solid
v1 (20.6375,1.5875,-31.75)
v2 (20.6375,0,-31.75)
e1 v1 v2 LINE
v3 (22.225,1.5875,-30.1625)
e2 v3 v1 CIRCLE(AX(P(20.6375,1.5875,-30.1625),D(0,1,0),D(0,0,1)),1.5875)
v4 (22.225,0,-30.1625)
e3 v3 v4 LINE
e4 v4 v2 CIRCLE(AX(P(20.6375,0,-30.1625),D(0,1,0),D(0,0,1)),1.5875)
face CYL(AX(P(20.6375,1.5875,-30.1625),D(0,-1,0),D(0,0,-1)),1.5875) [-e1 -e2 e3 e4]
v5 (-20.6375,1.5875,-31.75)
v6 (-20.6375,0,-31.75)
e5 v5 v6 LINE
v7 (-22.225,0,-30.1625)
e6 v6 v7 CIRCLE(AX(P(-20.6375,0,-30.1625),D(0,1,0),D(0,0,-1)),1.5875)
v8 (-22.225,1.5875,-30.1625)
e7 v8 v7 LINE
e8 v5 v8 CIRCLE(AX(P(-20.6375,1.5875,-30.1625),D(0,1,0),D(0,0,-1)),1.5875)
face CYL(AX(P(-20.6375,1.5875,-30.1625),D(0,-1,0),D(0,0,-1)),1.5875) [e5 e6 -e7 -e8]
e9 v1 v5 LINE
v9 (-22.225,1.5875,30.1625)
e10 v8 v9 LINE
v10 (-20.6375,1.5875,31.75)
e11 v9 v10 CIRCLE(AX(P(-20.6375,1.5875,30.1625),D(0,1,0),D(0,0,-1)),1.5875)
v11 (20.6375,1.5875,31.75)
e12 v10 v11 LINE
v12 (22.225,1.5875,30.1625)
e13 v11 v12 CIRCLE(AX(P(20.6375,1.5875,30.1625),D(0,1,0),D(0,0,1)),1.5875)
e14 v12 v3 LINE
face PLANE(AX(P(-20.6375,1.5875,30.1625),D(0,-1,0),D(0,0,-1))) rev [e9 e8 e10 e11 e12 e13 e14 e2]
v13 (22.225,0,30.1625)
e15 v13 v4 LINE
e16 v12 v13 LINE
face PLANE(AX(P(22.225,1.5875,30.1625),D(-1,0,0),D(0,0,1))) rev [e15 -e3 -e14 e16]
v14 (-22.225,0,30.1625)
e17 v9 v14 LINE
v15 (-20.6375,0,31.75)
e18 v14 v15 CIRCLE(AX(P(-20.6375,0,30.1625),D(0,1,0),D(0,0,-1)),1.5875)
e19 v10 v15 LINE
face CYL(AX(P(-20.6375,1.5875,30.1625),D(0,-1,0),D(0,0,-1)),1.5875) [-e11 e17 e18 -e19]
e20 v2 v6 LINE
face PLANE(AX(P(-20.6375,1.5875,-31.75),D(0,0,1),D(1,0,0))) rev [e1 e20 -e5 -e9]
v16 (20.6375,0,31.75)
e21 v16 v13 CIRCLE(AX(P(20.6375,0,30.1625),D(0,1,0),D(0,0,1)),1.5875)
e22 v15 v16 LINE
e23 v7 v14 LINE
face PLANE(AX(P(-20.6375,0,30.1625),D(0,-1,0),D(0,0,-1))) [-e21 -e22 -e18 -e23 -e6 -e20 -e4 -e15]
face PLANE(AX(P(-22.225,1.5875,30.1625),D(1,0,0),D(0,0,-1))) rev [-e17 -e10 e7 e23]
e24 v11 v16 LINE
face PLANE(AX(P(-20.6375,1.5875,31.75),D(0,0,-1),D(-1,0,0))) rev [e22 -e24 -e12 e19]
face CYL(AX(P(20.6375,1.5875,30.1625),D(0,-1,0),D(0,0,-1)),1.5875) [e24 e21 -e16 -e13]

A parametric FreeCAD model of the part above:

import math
import FreeCAD as App
import Part
import Sketcher
from FreeCAD import Vector
Q = App.Units.Quantity

doc = App.newDocument("Part")
body = doc.addObject("PartDesign::Body", "Body")

sketch1 = body.newObject("Sketcher::SketchObject", "Sketch")
sketch1.AttachmentSupport = (doc.getObject("XZ_Plane"), [""])
sketch1.MapMode = "FlatFace"
sketch1.addGeometry([
    Part.LineSegment(Vector(-22.225, -30.1625, 0), Vector(-22.225, 30.1625, 0)),
    Part.ArcOfCircle(Part.Circle(Vector(-20.6375, 30.1625, 0), Vector(0, 0, 1), 1.5875), math.radians(90), math.radians(180)),
    Part.LineSegment(Vector(-20.6375, 31.75, 0), Vector(20.6375, 31.75, 0)),
    Part.ArcOfCircle(Part.Circle(Vector(20.6375, 30.1625, 0), Vector(0, 0, 1), 1.5875), math.radians(0), math.radians(90)),
    Part.LineSegment(Vector(22.225, 30.1625, 0), Vector(22.225, -30.1625, 0)),
    Part.ArcOfCircle(Part.Circle(Vector(20.6375, -30.1625, 0), Vector(0, 0, 1), 1.5875), math.radians(-90), math.radians(0)),
    Part.LineSegment(Vector(20.6375, -31.75, 0), Vector(-20.6375, -31.75, 0)),
    Part.ArcOfCircle(Part.Circle(Vector(-20.6375, -30.1625, 0), Vector(0, 0, 1), 1.5875), math.radians(180), math.radians(270)),
], False)
sketch1.addConstraint([
    Sketcher.Constraint("Tangent", 0, 2, 1, 2),
    Sketcher.Constraint("Tangent", 1, 1, 2, 1),
    Sketcher.Constraint("Tangent", 2, 2, 3, 2),
    Sketcher.Constraint("Tangent", 3, 1, 4, 1),
    Sketcher.Constraint("Tangent", 4, 2, 5, 2),
    Sketcher.Constraint("Tangent", 5, 1, 6, 1),
    Sketcher.Constraint("Tangent", 6, 2, 7, 2),
    Sketcher.Constraint("Tangent", 7, 1, 0, 1),
    Sketcher.Constraint("Vertical", 0),
    Sketcher.Constraint("Horizontal", 2),
    Sketcher.Constraint("Vertical", 4),
    Sketcher.Constraint("Horizontal", 6),
    Sketcher.Constraint("Equal", 1, 3),
    Sketcher.Constraint("Equal", 3, 5),
    Sketcher.Constraint("Equal", 5, 7),
    Sketcher.Constraint("Symmetric", 1, 3, 5, 3, -1, 1),
    Sketcher.Constraint("Radius", 1, Q("0.0625 in")),
    Sketcher.Constraint("DistanceX", 2, 1, 2, 2, Q("1.625 in")),
    Sketcher.Constraint("DistanceY", 0, 1, 0, 2, Q("2.375 in")),
])
pad1 = body.newObject("PartDesign::Pad", "Pad")
pad1.Profile = sketch1
pad1.Length = Q("0.0625 in")
pad1.Reversed = True

doc.recompute()
